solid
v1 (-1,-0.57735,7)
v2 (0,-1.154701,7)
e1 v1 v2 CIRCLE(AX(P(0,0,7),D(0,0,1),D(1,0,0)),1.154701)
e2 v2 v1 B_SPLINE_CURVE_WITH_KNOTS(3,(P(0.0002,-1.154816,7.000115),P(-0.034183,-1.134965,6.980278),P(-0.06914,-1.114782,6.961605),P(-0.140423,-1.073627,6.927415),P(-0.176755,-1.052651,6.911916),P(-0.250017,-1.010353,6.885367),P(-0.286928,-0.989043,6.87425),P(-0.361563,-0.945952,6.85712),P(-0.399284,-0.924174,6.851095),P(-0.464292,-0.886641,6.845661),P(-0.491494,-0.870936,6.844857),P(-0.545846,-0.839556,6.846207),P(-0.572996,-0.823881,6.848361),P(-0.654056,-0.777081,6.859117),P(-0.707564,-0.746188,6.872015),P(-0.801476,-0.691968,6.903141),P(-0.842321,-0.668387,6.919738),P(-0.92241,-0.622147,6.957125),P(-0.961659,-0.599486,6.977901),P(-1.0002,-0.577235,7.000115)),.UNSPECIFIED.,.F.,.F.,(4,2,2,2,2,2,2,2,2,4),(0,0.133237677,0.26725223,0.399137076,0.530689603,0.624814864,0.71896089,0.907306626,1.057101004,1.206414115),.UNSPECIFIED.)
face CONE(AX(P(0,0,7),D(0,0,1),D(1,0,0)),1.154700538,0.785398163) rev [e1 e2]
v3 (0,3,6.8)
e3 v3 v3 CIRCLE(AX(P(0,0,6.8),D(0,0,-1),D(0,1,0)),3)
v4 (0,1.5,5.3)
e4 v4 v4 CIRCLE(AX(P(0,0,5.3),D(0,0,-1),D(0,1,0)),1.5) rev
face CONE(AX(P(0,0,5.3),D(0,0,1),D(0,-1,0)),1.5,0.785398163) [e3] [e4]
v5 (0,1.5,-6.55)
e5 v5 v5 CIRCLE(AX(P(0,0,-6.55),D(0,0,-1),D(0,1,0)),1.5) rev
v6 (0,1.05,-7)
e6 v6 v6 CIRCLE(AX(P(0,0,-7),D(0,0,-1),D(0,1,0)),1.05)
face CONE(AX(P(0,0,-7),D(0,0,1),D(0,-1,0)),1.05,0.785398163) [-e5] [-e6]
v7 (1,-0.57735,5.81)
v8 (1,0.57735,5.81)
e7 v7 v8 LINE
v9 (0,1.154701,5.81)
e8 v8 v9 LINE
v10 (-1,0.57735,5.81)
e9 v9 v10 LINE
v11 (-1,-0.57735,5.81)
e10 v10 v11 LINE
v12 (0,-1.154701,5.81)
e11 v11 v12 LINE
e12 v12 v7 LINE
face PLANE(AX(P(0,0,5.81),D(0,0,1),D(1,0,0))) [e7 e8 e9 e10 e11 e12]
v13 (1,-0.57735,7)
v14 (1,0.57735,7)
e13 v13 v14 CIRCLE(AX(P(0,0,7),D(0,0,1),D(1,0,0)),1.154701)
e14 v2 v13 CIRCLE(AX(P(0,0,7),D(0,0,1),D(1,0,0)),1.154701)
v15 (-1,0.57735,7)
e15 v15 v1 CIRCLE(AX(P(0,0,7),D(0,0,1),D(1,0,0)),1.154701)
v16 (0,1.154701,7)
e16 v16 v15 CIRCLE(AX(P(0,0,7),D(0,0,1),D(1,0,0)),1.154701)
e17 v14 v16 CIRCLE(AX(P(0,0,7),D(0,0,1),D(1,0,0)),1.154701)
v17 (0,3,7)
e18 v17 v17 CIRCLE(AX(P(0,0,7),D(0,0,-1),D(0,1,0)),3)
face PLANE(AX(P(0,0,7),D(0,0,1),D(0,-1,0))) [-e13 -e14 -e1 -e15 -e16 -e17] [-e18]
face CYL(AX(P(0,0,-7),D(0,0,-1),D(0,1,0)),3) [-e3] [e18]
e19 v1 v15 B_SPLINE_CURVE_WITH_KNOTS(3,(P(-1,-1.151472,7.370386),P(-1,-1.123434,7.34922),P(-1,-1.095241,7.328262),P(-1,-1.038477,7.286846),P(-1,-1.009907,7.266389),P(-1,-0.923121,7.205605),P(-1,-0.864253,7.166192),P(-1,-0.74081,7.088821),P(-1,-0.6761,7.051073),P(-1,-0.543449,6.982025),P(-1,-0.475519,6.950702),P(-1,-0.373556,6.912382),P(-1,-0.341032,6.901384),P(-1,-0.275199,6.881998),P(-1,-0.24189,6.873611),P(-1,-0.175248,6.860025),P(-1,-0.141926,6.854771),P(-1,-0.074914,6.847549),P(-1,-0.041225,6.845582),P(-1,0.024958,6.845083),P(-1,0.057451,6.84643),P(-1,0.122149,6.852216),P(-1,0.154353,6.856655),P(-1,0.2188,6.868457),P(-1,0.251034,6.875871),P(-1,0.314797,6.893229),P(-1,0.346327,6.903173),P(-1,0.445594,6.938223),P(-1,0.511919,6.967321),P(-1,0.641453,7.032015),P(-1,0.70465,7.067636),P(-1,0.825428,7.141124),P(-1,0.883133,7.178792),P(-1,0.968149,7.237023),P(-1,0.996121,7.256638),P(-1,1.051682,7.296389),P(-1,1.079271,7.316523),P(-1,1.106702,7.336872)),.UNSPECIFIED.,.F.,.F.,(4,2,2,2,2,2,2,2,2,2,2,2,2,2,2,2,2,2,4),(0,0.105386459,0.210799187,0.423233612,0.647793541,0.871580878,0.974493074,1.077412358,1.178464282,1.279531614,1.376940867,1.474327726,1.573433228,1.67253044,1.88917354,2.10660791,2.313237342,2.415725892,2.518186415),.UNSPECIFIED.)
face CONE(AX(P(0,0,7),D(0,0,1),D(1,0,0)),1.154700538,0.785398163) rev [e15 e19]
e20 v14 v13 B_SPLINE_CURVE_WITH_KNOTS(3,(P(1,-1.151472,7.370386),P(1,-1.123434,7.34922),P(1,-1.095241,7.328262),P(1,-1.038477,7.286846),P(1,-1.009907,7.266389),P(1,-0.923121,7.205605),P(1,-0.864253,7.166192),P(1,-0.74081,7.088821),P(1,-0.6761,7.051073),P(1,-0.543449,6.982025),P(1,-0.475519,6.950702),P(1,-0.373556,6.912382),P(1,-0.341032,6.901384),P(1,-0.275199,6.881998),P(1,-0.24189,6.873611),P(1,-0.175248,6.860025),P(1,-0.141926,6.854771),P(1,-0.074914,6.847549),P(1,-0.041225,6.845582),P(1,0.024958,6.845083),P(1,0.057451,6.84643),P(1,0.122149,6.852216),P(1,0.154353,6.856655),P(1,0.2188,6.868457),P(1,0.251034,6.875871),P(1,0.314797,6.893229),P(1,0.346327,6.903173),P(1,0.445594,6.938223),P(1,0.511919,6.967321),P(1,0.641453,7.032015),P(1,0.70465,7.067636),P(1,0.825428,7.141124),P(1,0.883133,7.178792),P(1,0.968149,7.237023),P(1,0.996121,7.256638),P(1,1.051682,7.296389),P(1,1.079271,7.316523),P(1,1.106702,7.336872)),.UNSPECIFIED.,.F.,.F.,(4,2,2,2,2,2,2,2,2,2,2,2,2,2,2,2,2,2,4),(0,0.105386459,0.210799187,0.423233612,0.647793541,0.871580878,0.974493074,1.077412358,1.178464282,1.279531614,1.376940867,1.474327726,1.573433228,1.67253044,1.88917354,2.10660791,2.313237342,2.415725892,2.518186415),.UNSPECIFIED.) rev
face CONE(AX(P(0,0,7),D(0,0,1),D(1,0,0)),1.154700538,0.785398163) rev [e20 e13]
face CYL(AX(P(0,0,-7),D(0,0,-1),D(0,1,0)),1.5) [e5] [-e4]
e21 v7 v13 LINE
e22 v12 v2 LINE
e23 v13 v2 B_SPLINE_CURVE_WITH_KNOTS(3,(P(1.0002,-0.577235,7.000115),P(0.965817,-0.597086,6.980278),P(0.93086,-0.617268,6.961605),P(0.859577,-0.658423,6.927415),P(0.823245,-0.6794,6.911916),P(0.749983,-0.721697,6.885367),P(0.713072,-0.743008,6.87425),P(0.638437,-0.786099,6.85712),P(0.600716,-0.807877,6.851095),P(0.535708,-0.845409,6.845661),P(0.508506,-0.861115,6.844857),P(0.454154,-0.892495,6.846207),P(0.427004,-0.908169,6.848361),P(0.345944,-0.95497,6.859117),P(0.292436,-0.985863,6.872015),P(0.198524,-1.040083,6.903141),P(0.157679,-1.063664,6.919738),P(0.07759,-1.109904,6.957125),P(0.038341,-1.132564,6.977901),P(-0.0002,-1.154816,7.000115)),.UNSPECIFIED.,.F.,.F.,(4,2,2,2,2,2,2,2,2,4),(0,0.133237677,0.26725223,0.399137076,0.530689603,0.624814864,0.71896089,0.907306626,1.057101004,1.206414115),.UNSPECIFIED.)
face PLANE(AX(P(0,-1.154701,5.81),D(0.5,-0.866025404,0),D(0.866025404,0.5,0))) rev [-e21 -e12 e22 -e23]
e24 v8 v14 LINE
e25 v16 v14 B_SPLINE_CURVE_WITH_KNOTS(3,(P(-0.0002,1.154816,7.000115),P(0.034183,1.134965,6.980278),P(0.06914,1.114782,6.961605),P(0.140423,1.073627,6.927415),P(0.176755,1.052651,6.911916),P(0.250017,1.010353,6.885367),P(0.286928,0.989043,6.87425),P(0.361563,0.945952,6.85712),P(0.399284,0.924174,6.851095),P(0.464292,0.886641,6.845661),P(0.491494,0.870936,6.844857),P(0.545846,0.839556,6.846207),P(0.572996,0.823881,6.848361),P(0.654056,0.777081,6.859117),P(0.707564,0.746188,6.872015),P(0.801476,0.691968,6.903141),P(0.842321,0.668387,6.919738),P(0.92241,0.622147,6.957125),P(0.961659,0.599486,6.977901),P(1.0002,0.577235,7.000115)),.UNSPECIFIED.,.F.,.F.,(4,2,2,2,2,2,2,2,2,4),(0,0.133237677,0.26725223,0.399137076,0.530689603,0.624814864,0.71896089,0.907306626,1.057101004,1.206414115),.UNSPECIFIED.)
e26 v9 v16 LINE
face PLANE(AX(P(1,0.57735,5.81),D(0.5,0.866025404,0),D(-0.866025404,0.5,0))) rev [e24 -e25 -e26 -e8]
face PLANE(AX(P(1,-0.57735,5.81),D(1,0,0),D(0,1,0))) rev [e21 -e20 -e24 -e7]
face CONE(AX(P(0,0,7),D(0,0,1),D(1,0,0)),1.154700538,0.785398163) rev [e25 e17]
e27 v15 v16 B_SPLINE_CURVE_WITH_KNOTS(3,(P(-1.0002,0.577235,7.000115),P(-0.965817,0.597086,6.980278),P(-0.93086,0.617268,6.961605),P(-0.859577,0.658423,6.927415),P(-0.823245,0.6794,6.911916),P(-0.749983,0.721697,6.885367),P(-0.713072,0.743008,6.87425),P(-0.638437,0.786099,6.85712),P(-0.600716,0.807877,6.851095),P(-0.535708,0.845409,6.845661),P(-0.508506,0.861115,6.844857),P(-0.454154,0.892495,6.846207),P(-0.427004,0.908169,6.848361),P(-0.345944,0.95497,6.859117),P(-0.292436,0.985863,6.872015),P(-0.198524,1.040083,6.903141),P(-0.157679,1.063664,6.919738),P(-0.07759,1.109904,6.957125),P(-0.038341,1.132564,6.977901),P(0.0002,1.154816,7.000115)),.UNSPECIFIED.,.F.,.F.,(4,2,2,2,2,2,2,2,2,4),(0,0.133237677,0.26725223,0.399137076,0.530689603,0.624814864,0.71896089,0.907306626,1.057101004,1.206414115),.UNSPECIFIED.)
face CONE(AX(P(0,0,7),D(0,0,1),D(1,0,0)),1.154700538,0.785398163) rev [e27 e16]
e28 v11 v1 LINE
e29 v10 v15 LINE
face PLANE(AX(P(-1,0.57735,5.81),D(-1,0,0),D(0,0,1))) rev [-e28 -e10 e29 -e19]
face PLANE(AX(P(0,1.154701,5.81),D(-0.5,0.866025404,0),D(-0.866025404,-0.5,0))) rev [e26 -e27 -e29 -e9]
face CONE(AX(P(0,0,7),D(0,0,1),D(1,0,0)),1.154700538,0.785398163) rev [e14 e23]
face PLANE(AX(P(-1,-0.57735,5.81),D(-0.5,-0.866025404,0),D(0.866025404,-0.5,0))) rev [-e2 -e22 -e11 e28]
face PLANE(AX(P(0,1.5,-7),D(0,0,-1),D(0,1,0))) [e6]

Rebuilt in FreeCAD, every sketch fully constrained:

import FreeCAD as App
import Part
import Sketcher
from FreeCAD import Vector
Q = App.Units.Quantity


def edges_at(feature, points):
    """Names of the edges that pass closest to the given points."""
    edges = feature.Shape.Edges
    near = lambda p: min(range(len(edges)), key=lambda i: edges[i].distToShape(Part.Vertex(*p))[0])
    return sorted({f"Edge{near(p) + 1}" for p in points})


def add_polygon(sketch, points):
    """Adds a closed chain of lines whose ends are joined by coincident constraints."""
    first, n = sketch.GeometryCount, len(points)
    for a, b in zip(points, points[1:] + points[:1]):
        sketch.addGeometry(Part.LineSegment(App.Vector(*a, 0), App.Vector(*b, 0)), False)
    for i in range(n):
        sketch.addConstraint(Sketcher.Constraint("Coincident", first + i, 2, first + (i + 1) % n, 1))

doc = App.newDocument("Part")
params = doc.addObject("Spreadsheet::Sheet", "Params")
for row, (alias, value) in enumerate([
    ("sketch1_height", "14 mm"),
    ("sketch1_width", "1.5 mm"),
    ("revolution_angle", "360 deg"),
    ("chamfer_size", "0.45 mm"),
    ("sketch2_width", "3 mm"),
    ("sketch2_width2", "1.5 mm"),
    ("sketch2_height", "0.2 mm"),
    ("revolution2_angle", "360 deg"),
    ("pocket1_length", "1.19 mm"),
    ("groove_angle", "360 deg"),
], start=1):
    params.set(f"A{row}", alias)
    params.set(f"B{row}", "=" + value)
    params.setAlias(f"B{row}", alias)

body = doc.addObject("PartDesign::Body", "Body")

# Sketch on YZ plane
sketch1 = body.newObject("Sketcher::SketchObject", "Sketch")
sketch1.AttachmentSupport = (doc.getObject("YZ_Plane"), [""])
sketch1.MapMode = "FlatFace"
add_polygon(sketch1, [(1.5, 7), (0, 7), (0, -7), (1.5, -7)])  # lines 0-3
sketch1.addConstraint(Sketcher.Constraint("Horizontal", 0))
sketch1.addConstraint(Sketcher.Constraint("Vertical", 1))
sketch1.addConstraint(Sketcher.Constraint("Horizontal", 2))
sketch1.addConstraint(Sketcher.Constraint("Vertical", 3))
sketch1.addConstraint(Sketcher.Constraint("Symmetric", 0, 2, 1, 2, -1, 1))
sketch1.addConstraint(Sketcher.Constraint("DistanceY", 1, 2, 1, 1, 14.0))
sketch1.addConstraint(Sketcher.Constraint("DistanceX", 0, 2, 0, 1, 1.5))
sketch1.setExpression("Constraints[9]", "Params.sketch1_height")
sketch1.setExpression("Constraints[10]", "Params.sketch1_width")
revolution = body.newObject("PartDesign::Revolution", "Revolution")
revolution.Profile = sketch1
revolution.ReferenceAxis = (sketch1, ["V_Axis"])
revolution.setExpression("Angle", "Params.revolution_angle")
doc.recompute()

chamfer = body.newObject("PartDesign::Chamfer", "Chamfer")
chamfer.Base = (revolution, edges_at(revolution, [(0, -1.5, -7)]))
chamfer.setExpression("Size", "Params.chamfer_size")

# Sketch on YZ plane
sketch2 = body.newObject("Sketcher::SketchObject", "Sketch001")
sketch2.AttachmentSupport = (doc.getObject("YZ_Plane"), [""])
sketch2.MapMode = "FlatFace"
add_polygon(sketch2, [(3, 6.8), (3, 7), (0, 7), (0, 5.3), (1.5, 5.3)])  # lines 0-4
sketch2.addConstraint(Sketcher.Constraint("Vertical", 0))
sketch2.addConstraint(Sketcher.Constraint("Horizontal", 1))
sketch2.addConstraint(Sketcher.Constraint("Vertical", 2))
sketch2.addConstraint(Sketcher.Constraint("Horizontal", 3))
sketch2.addConstraint(Sketcher.Constraint("PointOnObject", 1, 2, -2))
sketch2.addConstraint(Sketcher.Constraint("DistanceX", 1, 2, 1, 1, 3.0))
sketch2.addConstraint(Sketcher.Constraint("Angle", 4, Q("45 deg")))
sketch2.addConstraint(Sketcher.Constraint("DistanceX", 3, 1, 3, 2, 1.5))
sketch2.addConstraint(Sketcher.Constraint("DistanceY", 0, 1, 0, 2, 0.2))
sketch2.addConstraint(Sketcher.Constraint("DistanceY", -1, 1, 0, 2, 7.0))
sketch2.setExpression("Constraints[10]", "Params.sketch2_width")
sketch2.setExpression("Constraints[12]", "Params.sketch2_width2")
sketch2.setExpression("Constraints[13]", "Params.sketch2_height")
revolution2 = body.newObject("PartDesign::Revolution", "Revolution001")
revolution2.Profile = sketch2
revolution2.ReferenceAxis = (sketch2, ["V_Axis"])
revolution2.setExpression("Angle", "Params.revolution2_angle")

# Sketch on XY plane
sketch3 = body.newObject("Sketcher::SketchObject", "Sketch002")
sketch3.AttachmentSupport = (doc.getObject("XY_Plane"), [""])
sketch3.MapMode = "FlatFace"
sketch3.AttachmentOffset = App.Placement(Vector(0, 0, 7), App.Rotation())
add_polygon(sketch3, [(0, 1.154701), (-1, 0.57735), (-1, -0.57735), (0, -1.154701), (1, -0.57735), (1, 0.57735)])  # lines 0-5
sketch3.addConstraint(Sketcher.Constraint("Vertical", 1))
sketch3.addConstraint(Sketcher.Constraint("Vertical", 4))
sketch3.addConstraint(Sketcher.Constraint("Symmetric", 0, 2, 3, 2, -1, 1))
sketch3.addConstraint(Sketcher.Constraint("Symmetric", 2, 2, 5, 2, -1, 1))
sketch3.addConstraint(Sketcher.Constraint("PointOnObject", 2, 2, -2))
sketch3.addConstraint(Sketcher.Constraint("Parallel", 2, 5))
sketch3.addConstraint(Sketcher.Constraint("Horizontal", 1, 2, 3, 2))
sketch3.addConstraint(Sketcher.Constraint("Angle", 0, Q("-150 deg")))
sketch3.addConstraint(Sketcher.Constraint("DistanceX", 0, 2, -1, 1, 1.0))
sketch3.addConstraint(Sketcher.Constraint("DistanceY", 1, 2, 1, 1, 1.154701))
pocket1 = body.newObject("PartDesign::Pocket", "Pocket")
pocket1.Profile = sketch3
pocket1.setExpression("Length", "Params.pocket1_length")

# Sketch on YZ plane
sketch4 = body.newObject("Sketcher::SketchObject", "Sketch003")
sketch4.AttachmentSupport = (doc.getObject("YZ_Plane"), [""])
sketch4.MapMode = "FlatFace"
add_polygon(sketch4, [(0, 7), (-1.154701, 7), (0, 5.845299)])  # lines 0-2
sketch4.addConstraint(Sketcher.Constraint("Horizontal", 0))
sketch4.addConstraint(Sketcher.Constraint("Vertical", 2))
sketch4.addConstraint(Sketcher.Constraint("PointOnObject", 1, 2, -2))
sketch4.addConstraint(Sketcher.Constraint("Equal", 0, 2))
sketch4.addConstraint(Sketcher.Constraint("DistanceY", -1, 1, 0, 2, 7.0))
sketch4.addConstraint(Sketcher.Constraint("DistanceX", 0, 2, 0, 1, 1.154701))
groove = body.newObject("PartDesign::Groove", "Groove")
groove.Profile = sketch4
groove.ReferenceAxis = (sketch4, ["V_Axis"])
groove.setExpression("Angle", "Params.groove_angle")

doc.recompute()
